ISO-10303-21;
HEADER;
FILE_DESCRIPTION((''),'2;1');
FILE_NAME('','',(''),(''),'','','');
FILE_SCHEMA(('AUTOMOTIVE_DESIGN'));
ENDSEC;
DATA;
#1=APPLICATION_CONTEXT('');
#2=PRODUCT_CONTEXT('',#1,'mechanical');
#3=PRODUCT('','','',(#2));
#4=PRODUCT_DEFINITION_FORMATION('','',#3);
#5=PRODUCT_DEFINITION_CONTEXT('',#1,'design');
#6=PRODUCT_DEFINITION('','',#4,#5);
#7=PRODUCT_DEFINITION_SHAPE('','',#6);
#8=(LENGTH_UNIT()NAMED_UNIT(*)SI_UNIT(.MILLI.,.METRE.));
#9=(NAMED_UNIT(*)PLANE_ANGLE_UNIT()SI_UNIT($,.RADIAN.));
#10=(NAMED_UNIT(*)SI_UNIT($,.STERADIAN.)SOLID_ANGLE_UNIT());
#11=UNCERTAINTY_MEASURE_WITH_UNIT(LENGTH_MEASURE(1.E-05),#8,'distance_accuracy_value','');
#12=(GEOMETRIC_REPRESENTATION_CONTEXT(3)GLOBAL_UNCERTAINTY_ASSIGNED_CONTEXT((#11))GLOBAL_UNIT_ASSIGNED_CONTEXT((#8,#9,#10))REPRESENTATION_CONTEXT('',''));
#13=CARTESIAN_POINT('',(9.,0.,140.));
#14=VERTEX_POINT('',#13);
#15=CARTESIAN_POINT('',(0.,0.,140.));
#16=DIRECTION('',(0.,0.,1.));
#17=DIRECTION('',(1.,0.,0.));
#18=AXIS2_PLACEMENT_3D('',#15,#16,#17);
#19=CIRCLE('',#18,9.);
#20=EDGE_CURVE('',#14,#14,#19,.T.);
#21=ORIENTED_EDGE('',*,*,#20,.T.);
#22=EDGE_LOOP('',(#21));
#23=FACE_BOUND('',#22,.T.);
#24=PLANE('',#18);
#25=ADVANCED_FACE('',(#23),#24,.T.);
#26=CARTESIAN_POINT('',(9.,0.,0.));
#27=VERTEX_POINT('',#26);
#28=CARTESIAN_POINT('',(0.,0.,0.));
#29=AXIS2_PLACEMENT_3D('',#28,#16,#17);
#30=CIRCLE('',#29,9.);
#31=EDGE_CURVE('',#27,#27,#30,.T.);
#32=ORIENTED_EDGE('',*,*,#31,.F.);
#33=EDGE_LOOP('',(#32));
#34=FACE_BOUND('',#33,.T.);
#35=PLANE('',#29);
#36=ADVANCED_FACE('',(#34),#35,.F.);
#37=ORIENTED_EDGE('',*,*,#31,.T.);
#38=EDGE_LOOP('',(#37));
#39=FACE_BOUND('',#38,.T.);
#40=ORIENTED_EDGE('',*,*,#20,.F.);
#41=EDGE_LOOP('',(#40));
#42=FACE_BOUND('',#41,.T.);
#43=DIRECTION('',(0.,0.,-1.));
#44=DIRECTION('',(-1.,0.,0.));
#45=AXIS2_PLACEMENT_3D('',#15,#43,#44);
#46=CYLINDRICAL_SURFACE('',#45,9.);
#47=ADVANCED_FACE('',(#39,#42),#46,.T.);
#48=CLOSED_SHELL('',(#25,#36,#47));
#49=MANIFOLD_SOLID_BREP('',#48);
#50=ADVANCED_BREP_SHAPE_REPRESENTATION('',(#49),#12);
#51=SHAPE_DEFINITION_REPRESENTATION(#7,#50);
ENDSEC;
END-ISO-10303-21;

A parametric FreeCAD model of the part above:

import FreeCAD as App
import Part
import Sketcher

doc = App.newDocument("Part")
body = doc.addObject("PartDesign::Body", "Body")

# Sketch on XY plane
sketch1 = body.newObject("Sketcher::SketchObject", "Sketch")
sketch1.AttachmentSupport = (doc.getObject("XY_Plane"), [""])
sketch1.MapMode = "FlatFace"
sketch1.addGeometry(Part.Circle(App.Vector(0, 0, 0), App.Vector(0, 0, 1), 9), False)
sketch1.addConstraint([
    Sketcher.Constraint("Coincident", 0, 3, -1, 1),
    Sketcher.Constraint("Diameter", 0, 18.0),
])
pad1 = body.newObject("PartDesign::Pad", "Pad")
pad1.Profile = sketch1
pad1.Length = 140

doc.recompute()
